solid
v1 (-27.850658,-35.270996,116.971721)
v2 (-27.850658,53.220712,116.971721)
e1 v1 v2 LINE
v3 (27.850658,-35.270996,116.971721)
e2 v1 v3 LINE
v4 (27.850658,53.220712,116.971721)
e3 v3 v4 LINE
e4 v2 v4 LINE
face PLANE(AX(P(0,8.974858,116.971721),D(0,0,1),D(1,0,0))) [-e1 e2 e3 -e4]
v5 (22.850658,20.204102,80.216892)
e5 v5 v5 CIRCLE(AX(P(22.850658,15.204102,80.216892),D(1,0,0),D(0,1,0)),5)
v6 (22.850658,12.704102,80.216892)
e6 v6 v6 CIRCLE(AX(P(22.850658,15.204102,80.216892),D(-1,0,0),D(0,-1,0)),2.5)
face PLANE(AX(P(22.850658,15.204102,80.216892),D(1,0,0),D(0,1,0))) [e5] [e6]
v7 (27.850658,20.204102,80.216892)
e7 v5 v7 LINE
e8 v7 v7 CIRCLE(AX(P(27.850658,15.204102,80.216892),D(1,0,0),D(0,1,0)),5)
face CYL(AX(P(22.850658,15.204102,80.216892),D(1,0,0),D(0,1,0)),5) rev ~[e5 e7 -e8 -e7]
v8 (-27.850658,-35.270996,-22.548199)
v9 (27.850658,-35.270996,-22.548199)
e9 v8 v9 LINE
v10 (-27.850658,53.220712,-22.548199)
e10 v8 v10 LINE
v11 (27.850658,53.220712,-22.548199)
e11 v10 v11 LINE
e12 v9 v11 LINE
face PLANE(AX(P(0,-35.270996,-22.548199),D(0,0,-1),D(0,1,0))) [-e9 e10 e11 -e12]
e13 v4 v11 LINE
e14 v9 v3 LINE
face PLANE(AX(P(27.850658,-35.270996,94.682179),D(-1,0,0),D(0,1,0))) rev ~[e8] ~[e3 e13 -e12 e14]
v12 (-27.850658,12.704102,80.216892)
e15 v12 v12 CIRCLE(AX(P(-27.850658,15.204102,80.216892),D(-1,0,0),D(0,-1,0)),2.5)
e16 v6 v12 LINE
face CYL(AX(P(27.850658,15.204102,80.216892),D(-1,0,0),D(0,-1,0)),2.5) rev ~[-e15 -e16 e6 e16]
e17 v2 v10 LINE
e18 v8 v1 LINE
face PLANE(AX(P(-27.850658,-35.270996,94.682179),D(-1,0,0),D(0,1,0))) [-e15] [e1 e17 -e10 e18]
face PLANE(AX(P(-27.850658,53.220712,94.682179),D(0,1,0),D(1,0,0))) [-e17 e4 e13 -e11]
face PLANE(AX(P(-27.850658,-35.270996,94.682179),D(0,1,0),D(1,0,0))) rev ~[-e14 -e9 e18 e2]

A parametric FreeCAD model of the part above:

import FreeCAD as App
import Part
import Sketcher

V = App.Vector
Q = App.Units.Quantity

doc = App.newDocument("Part")
body = doc.addObject("PartDesign::Body", "Body")

sketch1 = doc.addObject("Sketcher::SketchObject", "Sketch")
body.addObject(sketch1)
sketch1.AttachmentSupport = (doc.YZ_Plane, [""])
sketch1.MapMode = "FlatFace"
sketch1.addGeometry(Part.LineSegment(V(-35, 95, 0), V(-35, -23, 0)), False)
sketch1.addGeometry(Part.LineSegment(V(-35, -23, 0), V(53, -23, 0)), False)
sketch1.addGeometry(Part.LineSegment(V(53, -23, 0), V(53, 95, 0)), False)
sketch1.addGeometry(Part.LineSegment(V(53, 95, 0), V(-35, 95, 0)), False)
sketch1.addConstraint(Sketcher.Constraint("Coincident", 0, 2, 1, 1))
sketch1.addConstraint(Sketcher.Constraint("Coincident", 1, 2, 2, 1))
sketch1.addConstraint(Sketcher.Constraint("Coincident", 2, 2, 3, 1))
sketch1.addConstraint(Sketcher.Constraint("Coincident", 3, 2, 0, 1))
sketch1.addConstraint(Sketcher.Constraint("Vertical", 0))
sketch1.addConstraint(Sketcher.Constraint("Horizontal", 1))
sketch1.addConstraint(Sketcher.Constraint("Vertical", 2))
sketch1.addConstraint(Sketcher.Constraint("Horizontal", 3))
sketch1.addConstraint(Sketcher.Constraint("DistanceY", 0, 2, 0, 1, Q("117.230378 mm")))
sketch1.addConstraint(Sketcher.Constraint("DistanceY", 0, 2, -1, 1, Q("22.548199 mm")))
sketch1.addConstraint(Sketcher.Constraint("DistanceX", 1, 1, 1, 2, Q("88.491708 mm")))
sketch1.addConstraint(Sketcher.Constraint("DistanceX", 0, 2, -1, 1, Q("35.270996 mm")))
pad1 = doc.addObject("PartDesign::Pad", "Pad")
body.addObject(pad1)
pad1.Profile = sketch1
pad1.Length = 55.701316
pad1.Midplane = True

sketch2 = doc.addObject("Sketcher::SketchObject", "Sketch001")
body.addObject(sketch2)
sketch2.AttachmentSupport = (doc.XY_Plane, [""])
sketch2.MapMode = "FlatFace"
sketch2.AttachmentOffset = App.Placement(V(0, 0, 94.682179), App.Rotation())
sketch2.addGeometry(Part.LineSegment(V(-28, 53, 0), V(-28, -35, 0)), False)
sketch2.addGeometry(Part.LineSegment(V(-28, -35, 0), V(28, -35, 0)), False)
sketch2.addGeometry(Part.LineSegment(V(28, -35, 0), V(28, 53, 0)), False)
sketch2.addGeometry(Part.LineSegment(V(28, 53, 0), V(-28, 53, 0)), False)
sketch2.addConstraint(Sketcher.Constraint("Coincident", 0, 2, 1, 1))
sketch2.addConstraint(Sketcher.Constraint("Coincident", 1, 2, 2, 1))
sketch2.addConstraint(Sketcher.Constraint("Coincident", 2, 2, 3, 1))
sketch2.addConstraint(Sketcher.Constraint("Coincident", 3, 2, 0, 1))
sketch2.addConstraint(Sketcher.Constraint("Vertical", 0))
sketch2.addConstraint(Sketcher.Constraint("Horizontal", 1))
sketch2.addConstraint(Sketcher.Constraint("Vertical", 2))
sketch2.addConstraint(Sketcher.Constraint("Horizontal", 3))
sketch2.addConstraint(Sketcher.Constraint("DistanceX", 1, 1, 1, 2, Q("55.701316 mm")))
sketch2.addConstraint(Sketcher.Constraint("DistanceY", 0, 2, 0, 1, Q("88.491708 mm")))
sketch2.addConstraint(Sketcher.Constraint("DistanceX", 0, 2, -1, 1, Q("27.850658 mm")))
sketch2.addConstraint(Sketcher.Constraint("DistanceY", 0, 2, -1, 1, Q("35.270996 mm")))
pad2 = doc.addObject("PartDesign::Pad", "Pad001")
body.addObject(pad2)
pad2.Profile = sketch2
pad2.Length = 22.289542

sketch3 = doc.addObject("Sketcher::SketchObject", "Sketch002")
body.addObject(sketch3)
sketch3.AttachmentSupport = (doc.YZ_Plane, [""])
sketch3.MapMode = "FlatFace"
sketch3.AttachmentOffset = App.Placement(V(0, 0, 27.850658), App.Rotation())
sketch3.addGeometry(Part.Circle(V(15.2, 80.2, 0), V(0, 0, 1), 2.5), False)
sketch3.addConstraint(Sketcher.Constraint("Diameter", 0, Q("5 mm")))
sketch3.addConstraint(Sketcher.Constraint("DistanceY", -1, 1, 0, 3, Q("80.216892 mm")))
sketch3.addConstraint(Sketcher.Constraint("DistanceX", -1, 1, 0, 3, Q("15.204102 mm")))
doc.recompute()
hole = doc.addObject("PartDesign::Hole", "Hole")
body.addObject(hole)
hole.Profile = sketch3
hole.ThreadType = "None"
hole.Diameter = 5
hole.DepthType = "ThroughAll"
hole.HoleCutType = "Counterbore"
hole.HoleCutDiameter = 10
hole.HoleCutDepth = 5

doc.recompute()
